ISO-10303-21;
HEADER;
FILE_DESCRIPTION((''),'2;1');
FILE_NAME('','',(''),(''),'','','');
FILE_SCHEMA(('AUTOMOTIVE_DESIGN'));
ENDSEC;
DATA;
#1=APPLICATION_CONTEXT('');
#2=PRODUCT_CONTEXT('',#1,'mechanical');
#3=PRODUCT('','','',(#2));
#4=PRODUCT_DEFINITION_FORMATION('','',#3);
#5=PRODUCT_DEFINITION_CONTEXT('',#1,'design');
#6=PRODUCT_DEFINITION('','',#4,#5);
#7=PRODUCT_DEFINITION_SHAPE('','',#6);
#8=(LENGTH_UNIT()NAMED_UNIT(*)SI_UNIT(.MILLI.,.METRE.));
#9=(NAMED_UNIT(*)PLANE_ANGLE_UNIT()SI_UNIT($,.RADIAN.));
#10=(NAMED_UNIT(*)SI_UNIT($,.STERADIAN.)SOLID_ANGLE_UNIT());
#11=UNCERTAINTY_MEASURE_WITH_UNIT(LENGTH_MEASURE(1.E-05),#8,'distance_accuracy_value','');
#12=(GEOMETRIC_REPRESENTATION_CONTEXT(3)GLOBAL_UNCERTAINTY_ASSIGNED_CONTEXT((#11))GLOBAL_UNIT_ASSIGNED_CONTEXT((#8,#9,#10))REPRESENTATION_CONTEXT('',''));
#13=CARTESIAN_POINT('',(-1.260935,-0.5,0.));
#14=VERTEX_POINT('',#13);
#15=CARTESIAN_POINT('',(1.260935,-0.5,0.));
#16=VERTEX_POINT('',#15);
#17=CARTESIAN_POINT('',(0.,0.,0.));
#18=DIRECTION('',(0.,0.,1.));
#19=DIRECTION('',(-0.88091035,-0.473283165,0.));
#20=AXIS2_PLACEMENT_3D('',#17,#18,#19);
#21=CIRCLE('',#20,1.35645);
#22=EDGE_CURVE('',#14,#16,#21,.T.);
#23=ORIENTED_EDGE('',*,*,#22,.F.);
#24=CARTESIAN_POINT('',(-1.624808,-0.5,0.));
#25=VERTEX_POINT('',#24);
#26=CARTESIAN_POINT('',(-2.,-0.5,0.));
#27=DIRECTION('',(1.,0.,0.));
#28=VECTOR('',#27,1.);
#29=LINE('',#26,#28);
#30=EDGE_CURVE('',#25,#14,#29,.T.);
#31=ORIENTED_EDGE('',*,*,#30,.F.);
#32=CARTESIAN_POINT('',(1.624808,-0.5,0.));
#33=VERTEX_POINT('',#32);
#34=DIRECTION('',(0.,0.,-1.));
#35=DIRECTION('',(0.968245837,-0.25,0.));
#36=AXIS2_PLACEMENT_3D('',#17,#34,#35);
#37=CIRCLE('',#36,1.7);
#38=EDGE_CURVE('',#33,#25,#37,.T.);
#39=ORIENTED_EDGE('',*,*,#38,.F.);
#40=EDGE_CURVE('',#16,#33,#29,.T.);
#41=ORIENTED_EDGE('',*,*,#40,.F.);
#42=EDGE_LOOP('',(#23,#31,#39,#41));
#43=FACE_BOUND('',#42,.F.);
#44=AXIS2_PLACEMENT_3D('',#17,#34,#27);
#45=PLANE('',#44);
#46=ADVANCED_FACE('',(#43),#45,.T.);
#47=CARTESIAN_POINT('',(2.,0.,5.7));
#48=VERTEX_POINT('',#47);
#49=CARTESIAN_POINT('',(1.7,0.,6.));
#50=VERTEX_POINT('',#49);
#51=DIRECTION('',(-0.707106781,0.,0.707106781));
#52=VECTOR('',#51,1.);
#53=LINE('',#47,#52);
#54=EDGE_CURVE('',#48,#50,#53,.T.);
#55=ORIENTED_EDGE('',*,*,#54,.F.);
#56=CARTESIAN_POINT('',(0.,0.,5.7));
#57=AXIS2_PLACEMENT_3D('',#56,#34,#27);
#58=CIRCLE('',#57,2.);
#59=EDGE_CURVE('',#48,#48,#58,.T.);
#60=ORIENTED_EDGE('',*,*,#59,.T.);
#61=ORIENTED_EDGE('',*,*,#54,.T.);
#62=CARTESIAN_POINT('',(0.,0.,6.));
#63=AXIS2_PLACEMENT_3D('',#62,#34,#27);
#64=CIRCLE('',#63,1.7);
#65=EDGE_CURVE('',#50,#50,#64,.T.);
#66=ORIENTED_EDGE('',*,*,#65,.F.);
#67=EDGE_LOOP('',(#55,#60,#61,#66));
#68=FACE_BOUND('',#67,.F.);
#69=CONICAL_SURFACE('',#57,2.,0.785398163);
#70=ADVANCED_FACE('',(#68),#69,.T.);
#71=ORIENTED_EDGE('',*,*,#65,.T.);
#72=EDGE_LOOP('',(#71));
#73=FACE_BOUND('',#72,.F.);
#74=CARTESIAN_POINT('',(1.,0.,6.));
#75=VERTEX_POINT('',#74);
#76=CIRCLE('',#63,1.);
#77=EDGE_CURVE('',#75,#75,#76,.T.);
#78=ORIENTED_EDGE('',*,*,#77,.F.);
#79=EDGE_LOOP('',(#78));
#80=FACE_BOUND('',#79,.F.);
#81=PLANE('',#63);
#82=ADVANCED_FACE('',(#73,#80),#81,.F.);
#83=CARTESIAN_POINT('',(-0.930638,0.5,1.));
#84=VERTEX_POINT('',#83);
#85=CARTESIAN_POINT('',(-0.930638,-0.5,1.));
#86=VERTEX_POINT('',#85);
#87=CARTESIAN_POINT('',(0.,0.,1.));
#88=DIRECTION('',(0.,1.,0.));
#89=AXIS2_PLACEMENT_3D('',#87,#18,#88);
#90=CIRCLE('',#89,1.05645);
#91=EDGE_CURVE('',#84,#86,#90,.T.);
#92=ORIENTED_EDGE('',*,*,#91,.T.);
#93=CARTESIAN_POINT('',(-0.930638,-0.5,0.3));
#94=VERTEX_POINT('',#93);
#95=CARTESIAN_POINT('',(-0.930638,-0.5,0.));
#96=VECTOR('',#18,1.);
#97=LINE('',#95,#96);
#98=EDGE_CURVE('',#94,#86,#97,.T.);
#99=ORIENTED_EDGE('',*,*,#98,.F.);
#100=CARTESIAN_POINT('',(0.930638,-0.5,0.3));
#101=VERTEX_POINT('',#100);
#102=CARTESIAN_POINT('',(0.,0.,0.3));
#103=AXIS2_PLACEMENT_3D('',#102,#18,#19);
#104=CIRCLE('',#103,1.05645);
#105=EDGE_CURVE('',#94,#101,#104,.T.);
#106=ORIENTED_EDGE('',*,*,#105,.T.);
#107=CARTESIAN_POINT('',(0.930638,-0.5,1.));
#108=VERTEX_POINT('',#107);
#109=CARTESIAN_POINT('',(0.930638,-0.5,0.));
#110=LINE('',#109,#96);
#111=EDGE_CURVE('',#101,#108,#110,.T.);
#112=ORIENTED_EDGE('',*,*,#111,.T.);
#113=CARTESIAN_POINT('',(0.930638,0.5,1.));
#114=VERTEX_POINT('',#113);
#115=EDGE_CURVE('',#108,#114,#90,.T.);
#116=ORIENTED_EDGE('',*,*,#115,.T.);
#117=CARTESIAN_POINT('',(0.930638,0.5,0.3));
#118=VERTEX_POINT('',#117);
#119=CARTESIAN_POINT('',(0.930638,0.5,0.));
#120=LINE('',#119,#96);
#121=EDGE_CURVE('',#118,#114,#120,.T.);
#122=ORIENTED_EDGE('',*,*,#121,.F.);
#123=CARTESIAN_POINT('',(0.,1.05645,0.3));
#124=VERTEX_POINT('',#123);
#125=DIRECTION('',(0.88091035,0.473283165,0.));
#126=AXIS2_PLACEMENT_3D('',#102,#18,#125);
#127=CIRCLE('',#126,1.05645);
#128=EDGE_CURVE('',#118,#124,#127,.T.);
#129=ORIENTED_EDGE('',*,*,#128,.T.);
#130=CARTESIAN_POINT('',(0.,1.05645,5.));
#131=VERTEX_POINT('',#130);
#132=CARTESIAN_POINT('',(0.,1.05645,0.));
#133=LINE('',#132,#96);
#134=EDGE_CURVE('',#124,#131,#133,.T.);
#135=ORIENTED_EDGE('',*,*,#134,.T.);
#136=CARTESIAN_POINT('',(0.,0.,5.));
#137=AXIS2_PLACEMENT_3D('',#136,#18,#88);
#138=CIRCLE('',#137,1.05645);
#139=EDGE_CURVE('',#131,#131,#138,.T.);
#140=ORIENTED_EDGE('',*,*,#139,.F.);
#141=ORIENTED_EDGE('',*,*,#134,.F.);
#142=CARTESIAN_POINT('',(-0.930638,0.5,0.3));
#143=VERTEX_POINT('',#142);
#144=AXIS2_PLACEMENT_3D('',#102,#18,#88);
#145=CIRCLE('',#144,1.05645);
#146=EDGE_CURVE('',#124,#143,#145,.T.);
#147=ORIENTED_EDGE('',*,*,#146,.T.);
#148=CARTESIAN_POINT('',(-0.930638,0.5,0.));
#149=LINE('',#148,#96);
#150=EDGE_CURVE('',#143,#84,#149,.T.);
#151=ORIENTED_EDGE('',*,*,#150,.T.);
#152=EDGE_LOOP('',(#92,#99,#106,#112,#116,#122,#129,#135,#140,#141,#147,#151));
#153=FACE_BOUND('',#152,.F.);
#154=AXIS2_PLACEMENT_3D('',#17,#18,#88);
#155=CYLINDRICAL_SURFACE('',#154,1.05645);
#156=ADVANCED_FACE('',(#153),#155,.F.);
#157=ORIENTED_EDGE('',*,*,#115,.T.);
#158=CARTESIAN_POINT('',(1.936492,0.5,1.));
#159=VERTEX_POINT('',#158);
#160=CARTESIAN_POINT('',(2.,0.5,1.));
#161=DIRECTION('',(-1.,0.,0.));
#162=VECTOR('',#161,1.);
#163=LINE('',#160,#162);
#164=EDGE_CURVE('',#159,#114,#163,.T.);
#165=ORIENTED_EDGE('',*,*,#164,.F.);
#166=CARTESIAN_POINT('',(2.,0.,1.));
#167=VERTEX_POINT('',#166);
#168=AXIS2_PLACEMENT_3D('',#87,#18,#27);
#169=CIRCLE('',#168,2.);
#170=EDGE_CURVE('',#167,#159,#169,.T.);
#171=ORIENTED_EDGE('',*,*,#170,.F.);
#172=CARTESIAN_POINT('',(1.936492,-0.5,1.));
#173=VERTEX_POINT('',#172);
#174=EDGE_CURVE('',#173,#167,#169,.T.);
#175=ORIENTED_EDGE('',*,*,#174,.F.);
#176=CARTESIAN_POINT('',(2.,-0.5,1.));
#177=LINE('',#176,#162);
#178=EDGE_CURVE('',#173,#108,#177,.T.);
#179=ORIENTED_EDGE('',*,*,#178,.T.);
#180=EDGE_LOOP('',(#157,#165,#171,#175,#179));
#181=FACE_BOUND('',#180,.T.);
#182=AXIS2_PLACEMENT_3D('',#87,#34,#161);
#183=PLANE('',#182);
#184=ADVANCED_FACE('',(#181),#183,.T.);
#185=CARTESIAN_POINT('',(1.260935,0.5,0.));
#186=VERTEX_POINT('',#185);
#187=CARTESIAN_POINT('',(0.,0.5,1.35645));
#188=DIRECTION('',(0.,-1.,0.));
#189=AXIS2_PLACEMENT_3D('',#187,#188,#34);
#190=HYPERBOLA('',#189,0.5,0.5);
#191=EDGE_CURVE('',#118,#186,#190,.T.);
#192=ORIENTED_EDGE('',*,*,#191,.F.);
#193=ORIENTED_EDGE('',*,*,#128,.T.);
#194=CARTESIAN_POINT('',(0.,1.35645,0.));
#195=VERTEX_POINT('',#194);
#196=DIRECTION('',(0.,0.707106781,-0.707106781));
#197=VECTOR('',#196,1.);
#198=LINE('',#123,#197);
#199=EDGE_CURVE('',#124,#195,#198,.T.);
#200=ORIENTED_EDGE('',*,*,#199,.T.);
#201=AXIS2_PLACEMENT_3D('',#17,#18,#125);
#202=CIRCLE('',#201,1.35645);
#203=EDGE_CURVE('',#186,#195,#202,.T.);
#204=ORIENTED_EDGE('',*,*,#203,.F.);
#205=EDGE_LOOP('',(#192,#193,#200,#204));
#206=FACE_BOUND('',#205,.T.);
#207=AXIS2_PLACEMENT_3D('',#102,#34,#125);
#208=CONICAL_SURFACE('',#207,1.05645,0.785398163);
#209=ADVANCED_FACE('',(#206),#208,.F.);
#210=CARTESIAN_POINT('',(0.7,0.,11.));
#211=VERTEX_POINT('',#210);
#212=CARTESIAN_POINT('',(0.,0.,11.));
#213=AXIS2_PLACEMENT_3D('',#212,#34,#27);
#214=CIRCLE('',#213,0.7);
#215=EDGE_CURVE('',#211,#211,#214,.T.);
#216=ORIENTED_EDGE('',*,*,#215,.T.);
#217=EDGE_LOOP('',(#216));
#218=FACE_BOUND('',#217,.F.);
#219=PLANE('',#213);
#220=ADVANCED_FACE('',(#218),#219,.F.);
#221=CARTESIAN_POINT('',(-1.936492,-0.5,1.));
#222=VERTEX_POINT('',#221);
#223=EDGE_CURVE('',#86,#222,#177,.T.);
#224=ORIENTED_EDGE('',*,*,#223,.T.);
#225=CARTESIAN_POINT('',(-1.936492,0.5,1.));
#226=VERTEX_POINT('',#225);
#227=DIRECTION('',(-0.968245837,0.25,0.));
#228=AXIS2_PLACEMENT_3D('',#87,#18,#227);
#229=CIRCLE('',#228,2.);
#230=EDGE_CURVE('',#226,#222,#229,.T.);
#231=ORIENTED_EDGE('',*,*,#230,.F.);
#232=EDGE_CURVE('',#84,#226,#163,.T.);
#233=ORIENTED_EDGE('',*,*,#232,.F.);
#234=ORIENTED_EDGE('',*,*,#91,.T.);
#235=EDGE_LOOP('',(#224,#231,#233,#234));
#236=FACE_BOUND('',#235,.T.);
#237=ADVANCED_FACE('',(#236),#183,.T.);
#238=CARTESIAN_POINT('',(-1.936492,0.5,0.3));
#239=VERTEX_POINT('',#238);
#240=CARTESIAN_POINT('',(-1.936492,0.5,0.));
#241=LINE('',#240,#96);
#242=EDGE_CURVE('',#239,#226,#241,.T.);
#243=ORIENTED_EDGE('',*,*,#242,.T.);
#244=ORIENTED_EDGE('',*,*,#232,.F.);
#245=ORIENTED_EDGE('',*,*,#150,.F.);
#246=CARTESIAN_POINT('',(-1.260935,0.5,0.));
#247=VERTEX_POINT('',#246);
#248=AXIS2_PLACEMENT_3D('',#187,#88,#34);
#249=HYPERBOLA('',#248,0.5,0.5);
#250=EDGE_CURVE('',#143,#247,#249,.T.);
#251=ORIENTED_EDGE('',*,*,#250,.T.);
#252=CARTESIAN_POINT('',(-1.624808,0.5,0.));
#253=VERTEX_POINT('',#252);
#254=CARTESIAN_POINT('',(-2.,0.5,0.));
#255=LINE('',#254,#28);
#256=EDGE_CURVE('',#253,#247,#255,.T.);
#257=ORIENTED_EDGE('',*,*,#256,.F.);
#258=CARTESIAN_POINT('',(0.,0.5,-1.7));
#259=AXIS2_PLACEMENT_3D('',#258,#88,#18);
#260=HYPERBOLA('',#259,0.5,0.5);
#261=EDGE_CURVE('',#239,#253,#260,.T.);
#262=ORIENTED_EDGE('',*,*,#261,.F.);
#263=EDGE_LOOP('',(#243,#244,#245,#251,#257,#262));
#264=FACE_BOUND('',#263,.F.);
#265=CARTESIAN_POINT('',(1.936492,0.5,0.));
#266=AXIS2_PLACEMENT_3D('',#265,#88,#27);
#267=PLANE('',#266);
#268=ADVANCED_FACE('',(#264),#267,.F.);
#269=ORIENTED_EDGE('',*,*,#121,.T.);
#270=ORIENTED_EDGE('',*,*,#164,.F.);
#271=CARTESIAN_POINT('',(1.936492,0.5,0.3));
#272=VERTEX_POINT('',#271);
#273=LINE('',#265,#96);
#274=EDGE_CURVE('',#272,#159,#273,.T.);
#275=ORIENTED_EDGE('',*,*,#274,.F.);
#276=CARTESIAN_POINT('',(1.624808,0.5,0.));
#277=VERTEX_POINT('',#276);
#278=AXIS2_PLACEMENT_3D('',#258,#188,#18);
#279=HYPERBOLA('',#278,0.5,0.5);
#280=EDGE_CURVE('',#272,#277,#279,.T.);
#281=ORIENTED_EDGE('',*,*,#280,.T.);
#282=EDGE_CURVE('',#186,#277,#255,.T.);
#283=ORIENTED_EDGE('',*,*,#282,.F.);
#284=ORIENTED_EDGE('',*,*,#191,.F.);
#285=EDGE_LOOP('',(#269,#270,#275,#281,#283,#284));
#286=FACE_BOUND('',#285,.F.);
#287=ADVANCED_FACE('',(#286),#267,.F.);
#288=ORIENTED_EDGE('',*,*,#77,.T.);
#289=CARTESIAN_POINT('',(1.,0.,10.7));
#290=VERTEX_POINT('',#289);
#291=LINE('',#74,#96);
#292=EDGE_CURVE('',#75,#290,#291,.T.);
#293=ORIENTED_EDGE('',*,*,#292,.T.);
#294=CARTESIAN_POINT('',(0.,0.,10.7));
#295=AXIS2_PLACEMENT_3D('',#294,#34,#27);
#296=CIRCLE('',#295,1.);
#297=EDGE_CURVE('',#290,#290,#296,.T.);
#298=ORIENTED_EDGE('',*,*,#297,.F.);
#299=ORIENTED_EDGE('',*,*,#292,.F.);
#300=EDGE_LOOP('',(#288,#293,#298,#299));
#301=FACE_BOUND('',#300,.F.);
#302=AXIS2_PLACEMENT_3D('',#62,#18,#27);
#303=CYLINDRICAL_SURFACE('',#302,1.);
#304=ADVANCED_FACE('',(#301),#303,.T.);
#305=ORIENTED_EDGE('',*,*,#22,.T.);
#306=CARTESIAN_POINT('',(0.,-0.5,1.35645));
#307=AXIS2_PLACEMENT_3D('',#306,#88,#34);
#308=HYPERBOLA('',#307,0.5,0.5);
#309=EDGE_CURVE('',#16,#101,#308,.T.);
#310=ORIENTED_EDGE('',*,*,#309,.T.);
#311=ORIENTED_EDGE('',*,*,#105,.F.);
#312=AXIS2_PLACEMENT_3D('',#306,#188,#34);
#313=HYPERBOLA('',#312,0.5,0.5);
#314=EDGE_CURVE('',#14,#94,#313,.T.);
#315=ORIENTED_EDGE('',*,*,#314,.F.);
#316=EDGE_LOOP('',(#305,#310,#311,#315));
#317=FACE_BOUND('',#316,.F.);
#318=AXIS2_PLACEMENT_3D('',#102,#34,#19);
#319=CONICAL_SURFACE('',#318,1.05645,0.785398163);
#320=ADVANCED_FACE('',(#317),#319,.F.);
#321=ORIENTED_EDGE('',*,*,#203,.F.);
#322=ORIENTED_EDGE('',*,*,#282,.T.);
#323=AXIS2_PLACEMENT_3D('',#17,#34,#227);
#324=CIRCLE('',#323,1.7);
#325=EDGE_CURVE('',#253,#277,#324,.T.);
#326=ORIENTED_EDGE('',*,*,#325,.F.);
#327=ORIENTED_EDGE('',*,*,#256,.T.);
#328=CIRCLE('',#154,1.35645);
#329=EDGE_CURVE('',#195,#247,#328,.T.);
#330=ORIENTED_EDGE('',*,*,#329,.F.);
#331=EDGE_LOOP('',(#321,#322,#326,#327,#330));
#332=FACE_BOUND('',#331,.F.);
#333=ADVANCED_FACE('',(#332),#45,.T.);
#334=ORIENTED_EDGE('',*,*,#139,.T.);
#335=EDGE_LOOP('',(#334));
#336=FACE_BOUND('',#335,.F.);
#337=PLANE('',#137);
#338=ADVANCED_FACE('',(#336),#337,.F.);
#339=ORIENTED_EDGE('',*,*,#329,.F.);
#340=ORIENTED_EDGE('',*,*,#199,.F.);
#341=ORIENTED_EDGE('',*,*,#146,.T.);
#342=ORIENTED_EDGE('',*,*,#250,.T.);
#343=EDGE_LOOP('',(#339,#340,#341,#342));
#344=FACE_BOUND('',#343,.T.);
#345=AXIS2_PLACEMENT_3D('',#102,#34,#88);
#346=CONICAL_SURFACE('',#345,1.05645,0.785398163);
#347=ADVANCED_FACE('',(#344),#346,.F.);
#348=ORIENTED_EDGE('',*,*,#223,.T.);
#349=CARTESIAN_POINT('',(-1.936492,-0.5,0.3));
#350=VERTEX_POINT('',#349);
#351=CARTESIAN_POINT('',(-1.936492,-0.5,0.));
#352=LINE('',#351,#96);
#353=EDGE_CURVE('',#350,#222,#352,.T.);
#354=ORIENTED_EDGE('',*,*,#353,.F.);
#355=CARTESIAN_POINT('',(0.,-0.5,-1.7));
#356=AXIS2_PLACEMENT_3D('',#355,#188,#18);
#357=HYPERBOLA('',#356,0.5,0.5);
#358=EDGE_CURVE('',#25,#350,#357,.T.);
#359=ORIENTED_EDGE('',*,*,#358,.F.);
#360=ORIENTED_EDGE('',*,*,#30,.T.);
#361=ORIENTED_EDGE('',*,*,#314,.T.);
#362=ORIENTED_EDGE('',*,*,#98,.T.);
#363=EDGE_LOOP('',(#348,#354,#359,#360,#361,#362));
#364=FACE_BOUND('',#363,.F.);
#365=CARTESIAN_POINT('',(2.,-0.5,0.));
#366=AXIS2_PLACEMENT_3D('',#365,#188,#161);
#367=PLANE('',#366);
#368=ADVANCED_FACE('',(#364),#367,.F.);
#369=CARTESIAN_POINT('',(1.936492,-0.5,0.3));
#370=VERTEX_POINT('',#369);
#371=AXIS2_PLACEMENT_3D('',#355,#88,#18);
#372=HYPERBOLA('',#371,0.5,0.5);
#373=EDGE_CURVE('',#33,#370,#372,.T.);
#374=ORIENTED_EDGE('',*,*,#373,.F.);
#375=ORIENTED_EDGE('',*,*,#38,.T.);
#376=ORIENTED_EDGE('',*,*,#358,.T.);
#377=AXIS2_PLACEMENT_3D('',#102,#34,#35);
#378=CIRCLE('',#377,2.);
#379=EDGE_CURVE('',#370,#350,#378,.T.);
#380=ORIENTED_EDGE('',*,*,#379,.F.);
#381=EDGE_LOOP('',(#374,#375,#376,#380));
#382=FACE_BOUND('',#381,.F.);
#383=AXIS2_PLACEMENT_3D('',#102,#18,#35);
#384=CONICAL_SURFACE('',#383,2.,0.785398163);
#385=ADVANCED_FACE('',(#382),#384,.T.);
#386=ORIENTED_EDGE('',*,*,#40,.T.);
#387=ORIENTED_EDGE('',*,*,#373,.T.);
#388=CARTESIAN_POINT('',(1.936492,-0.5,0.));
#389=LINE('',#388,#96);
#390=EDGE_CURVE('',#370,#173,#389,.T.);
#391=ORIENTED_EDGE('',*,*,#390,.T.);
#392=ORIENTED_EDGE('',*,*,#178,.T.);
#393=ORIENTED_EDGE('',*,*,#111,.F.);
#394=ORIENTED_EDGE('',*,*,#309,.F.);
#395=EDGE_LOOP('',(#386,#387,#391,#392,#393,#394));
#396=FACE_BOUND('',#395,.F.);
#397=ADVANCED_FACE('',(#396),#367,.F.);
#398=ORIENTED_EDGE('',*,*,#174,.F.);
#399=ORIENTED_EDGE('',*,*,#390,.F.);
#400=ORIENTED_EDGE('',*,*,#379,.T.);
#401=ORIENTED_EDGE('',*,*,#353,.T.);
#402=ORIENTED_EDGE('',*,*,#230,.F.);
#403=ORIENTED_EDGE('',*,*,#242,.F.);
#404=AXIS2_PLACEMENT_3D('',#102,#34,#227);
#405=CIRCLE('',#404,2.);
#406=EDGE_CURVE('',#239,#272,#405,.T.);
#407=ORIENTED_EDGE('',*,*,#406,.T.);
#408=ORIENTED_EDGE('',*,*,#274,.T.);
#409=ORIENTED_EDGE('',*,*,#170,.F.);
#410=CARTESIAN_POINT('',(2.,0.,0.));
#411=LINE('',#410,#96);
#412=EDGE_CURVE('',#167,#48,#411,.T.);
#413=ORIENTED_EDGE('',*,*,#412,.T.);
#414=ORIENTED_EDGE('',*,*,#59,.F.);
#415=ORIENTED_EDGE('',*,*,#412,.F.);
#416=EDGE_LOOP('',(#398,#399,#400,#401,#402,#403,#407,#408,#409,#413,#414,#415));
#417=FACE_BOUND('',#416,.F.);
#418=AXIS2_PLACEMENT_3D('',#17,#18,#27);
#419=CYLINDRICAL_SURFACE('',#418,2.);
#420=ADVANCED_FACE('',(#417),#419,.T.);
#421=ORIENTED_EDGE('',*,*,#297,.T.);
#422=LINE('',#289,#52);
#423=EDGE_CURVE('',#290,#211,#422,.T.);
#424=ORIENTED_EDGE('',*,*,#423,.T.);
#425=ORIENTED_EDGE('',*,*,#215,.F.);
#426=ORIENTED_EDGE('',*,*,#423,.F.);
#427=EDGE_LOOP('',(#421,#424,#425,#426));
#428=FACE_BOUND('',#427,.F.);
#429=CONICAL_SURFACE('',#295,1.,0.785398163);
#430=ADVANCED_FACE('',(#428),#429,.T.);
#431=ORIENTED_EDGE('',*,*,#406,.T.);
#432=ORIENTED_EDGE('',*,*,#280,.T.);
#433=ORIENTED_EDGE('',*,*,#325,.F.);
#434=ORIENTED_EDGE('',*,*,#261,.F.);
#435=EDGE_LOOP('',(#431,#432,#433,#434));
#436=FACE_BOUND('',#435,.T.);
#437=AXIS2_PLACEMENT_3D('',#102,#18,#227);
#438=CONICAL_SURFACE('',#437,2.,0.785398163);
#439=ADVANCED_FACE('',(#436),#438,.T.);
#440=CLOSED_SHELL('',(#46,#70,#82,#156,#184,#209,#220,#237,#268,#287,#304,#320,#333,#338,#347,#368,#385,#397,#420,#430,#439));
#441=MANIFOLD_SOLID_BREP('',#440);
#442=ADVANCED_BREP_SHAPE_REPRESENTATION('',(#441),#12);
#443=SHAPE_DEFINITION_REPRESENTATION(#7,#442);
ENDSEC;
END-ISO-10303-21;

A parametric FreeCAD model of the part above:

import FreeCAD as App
import Part
import Sketcher

V = App.Vector
Q = App.Units.Quantity


def edges_at(feature, points):
    """Names of the edges that pass closest to the given points."""
    edges = feature.Shape.Edges
    near = lambda p: min(range(len(edges)), key=lambda i: edges[i].distToShape(Part.Vertex(*p))[0])
    return sorted({f"Edge{near(p) + 1}" for p in points})


def add_polygon(sketch, points):
    """Adds a closed chain of lines whose ends are joined by coincident constraints."""
    first, n = sketch.GeometryCount, len(points)
    for a, b in zip(points, points[1:] + points[:1]):
        sketch.addGeometry(Part.LineSegment(App.Vector(*a, 0), App.Vector(*b, 0)), False)
    for i in range(n):
        sketch.addConstraint(Sketcher.Constraint("Coincident", first + i, 2, first + (i + 1) % n, 1))

doc = App.newDocument("Part")
body = doc.addObject("PartDesign::Body", "Body")

sketch1 = body.newObject("Sketcher::SketchObject", "Sketch")
sketch1.AttachmentSupport = (doc.getObject("XZ_Plane"), [""])
sketch1.MapMode = "FlatFace"
add_polygon(sketch1, [(2, 0), (0, 0), (0, 11), (1, 11), (1, 6), (2, 6)])
sketch1.addConstraint([
    Sketcher.Constraint("Horizontal", 0),
    Sketcher.Constraint("Vertical", 1),
    Sketcher.Constraint("Horizontal", 2),
    Sketcher.Constraint("Vertical", 3),
    Sketcher.Constraint("Horizontal", 4),
    Sketcher.Constraint("Vertical", 5),
    Sketcher.Constraint("Coincident", 0, 2, -1, 1),
    Sketcher.Constraint("Equal", 2, 4),
    Sketcher.Constraint("DistanceX", 0, 2, 0, 1, Q("2 mm")),
    Sketcher.Constraint("DistanceY", 3, 2, 3, 1, Q("5 mm")),
    Sketcher.Constraint("DistanceY", 5, 2, 5, 1, Q("6 mm")),
])
revolution = body.newObject("PartDesign::Revolution", "Revolution")
revolution.Profile = sketch1
revolution.ReferenceAxis = (sketch1, ["V_Axis"])
revolution.Angle = 360

sketch2 = body.newObject("Sketcher::SketchObject", "Sketch001")
sketch2.AttachmentSupport = (doc.getObject("XY_Plane"), [""])
sketch2.MapMode = "FlatFace"
add_polygon(sketch2, [(2, -0.5), (-2, -0.5), (-2, 0.5), (2, 0.5)])
sketch2.addConstraint([
    Sketcher.Constraint("Horizontal", 0),
    Sketcher.Constraint("Vertical", 1),
    Sketcher.Constraint("Horizontal", 2),
    Sketcher.Constraint("Vertical", 3),
    Sketcher.Constraint("Symmetric", 0, 2, 2, 2, -1, 1),
    Sketcher.Constraint("DistanceY", 1, 1, 1, 2, Q("1 mm")),
    Sketcher.Constraint("DistanceX", 0, 2, 0, 1, Q("4 mm")),
])
pocket1 = body.newObject("PartDesign::Pocket", "Pocket")
pocket1.Profile = sketch2
pocket1.Length = 1
pocket1.Reversed = True

sketch3 = body.newObject("Sketcher::SketchObject", "Sketch002")
sketch3.AttachmentSupport = (doc.getObject("XY_Plane"), [""])
sketch3.MapMode = "FlatFace"
sketch3.addGeometry(Part.Circle(V(0, 0, 0), V(0, 0, 1), 1.1), False)
sketch3.addConstraint([
    Sketcher.Constraint("Coincident", 0, 3, -1, 1),
    Sketcher.Constraint("Diameter", 0, Q("2.113 mm")),
])
doc.recompute()
hole = body.newObject("PartDesign::Hole", "Hole")
hole.Profile = sketch3
hole.ThreadType = "None"
hole.Diameter = 2.1129
hole.DepthType = "Dimension"
hole.Depth = 5
hole.DrillPoint = "Flat"
hole.Reversed = True
doc.recompute()

chamfer = body.newObject("PartDesign::Chamfer", "Chamfer")
chamfer.Base = (hole, edges_at(hole, [
    (-2, 0, 6),
    (0, 2, 0),
    (0, -2, 0),
    (0, -1.056, 0),
    (-0.542, 0.907, 0),
    (0.542, 0.907, 0),
    (-1, 0, 11),
]))
chamfer.Size = 0.3

doc.recompute()
